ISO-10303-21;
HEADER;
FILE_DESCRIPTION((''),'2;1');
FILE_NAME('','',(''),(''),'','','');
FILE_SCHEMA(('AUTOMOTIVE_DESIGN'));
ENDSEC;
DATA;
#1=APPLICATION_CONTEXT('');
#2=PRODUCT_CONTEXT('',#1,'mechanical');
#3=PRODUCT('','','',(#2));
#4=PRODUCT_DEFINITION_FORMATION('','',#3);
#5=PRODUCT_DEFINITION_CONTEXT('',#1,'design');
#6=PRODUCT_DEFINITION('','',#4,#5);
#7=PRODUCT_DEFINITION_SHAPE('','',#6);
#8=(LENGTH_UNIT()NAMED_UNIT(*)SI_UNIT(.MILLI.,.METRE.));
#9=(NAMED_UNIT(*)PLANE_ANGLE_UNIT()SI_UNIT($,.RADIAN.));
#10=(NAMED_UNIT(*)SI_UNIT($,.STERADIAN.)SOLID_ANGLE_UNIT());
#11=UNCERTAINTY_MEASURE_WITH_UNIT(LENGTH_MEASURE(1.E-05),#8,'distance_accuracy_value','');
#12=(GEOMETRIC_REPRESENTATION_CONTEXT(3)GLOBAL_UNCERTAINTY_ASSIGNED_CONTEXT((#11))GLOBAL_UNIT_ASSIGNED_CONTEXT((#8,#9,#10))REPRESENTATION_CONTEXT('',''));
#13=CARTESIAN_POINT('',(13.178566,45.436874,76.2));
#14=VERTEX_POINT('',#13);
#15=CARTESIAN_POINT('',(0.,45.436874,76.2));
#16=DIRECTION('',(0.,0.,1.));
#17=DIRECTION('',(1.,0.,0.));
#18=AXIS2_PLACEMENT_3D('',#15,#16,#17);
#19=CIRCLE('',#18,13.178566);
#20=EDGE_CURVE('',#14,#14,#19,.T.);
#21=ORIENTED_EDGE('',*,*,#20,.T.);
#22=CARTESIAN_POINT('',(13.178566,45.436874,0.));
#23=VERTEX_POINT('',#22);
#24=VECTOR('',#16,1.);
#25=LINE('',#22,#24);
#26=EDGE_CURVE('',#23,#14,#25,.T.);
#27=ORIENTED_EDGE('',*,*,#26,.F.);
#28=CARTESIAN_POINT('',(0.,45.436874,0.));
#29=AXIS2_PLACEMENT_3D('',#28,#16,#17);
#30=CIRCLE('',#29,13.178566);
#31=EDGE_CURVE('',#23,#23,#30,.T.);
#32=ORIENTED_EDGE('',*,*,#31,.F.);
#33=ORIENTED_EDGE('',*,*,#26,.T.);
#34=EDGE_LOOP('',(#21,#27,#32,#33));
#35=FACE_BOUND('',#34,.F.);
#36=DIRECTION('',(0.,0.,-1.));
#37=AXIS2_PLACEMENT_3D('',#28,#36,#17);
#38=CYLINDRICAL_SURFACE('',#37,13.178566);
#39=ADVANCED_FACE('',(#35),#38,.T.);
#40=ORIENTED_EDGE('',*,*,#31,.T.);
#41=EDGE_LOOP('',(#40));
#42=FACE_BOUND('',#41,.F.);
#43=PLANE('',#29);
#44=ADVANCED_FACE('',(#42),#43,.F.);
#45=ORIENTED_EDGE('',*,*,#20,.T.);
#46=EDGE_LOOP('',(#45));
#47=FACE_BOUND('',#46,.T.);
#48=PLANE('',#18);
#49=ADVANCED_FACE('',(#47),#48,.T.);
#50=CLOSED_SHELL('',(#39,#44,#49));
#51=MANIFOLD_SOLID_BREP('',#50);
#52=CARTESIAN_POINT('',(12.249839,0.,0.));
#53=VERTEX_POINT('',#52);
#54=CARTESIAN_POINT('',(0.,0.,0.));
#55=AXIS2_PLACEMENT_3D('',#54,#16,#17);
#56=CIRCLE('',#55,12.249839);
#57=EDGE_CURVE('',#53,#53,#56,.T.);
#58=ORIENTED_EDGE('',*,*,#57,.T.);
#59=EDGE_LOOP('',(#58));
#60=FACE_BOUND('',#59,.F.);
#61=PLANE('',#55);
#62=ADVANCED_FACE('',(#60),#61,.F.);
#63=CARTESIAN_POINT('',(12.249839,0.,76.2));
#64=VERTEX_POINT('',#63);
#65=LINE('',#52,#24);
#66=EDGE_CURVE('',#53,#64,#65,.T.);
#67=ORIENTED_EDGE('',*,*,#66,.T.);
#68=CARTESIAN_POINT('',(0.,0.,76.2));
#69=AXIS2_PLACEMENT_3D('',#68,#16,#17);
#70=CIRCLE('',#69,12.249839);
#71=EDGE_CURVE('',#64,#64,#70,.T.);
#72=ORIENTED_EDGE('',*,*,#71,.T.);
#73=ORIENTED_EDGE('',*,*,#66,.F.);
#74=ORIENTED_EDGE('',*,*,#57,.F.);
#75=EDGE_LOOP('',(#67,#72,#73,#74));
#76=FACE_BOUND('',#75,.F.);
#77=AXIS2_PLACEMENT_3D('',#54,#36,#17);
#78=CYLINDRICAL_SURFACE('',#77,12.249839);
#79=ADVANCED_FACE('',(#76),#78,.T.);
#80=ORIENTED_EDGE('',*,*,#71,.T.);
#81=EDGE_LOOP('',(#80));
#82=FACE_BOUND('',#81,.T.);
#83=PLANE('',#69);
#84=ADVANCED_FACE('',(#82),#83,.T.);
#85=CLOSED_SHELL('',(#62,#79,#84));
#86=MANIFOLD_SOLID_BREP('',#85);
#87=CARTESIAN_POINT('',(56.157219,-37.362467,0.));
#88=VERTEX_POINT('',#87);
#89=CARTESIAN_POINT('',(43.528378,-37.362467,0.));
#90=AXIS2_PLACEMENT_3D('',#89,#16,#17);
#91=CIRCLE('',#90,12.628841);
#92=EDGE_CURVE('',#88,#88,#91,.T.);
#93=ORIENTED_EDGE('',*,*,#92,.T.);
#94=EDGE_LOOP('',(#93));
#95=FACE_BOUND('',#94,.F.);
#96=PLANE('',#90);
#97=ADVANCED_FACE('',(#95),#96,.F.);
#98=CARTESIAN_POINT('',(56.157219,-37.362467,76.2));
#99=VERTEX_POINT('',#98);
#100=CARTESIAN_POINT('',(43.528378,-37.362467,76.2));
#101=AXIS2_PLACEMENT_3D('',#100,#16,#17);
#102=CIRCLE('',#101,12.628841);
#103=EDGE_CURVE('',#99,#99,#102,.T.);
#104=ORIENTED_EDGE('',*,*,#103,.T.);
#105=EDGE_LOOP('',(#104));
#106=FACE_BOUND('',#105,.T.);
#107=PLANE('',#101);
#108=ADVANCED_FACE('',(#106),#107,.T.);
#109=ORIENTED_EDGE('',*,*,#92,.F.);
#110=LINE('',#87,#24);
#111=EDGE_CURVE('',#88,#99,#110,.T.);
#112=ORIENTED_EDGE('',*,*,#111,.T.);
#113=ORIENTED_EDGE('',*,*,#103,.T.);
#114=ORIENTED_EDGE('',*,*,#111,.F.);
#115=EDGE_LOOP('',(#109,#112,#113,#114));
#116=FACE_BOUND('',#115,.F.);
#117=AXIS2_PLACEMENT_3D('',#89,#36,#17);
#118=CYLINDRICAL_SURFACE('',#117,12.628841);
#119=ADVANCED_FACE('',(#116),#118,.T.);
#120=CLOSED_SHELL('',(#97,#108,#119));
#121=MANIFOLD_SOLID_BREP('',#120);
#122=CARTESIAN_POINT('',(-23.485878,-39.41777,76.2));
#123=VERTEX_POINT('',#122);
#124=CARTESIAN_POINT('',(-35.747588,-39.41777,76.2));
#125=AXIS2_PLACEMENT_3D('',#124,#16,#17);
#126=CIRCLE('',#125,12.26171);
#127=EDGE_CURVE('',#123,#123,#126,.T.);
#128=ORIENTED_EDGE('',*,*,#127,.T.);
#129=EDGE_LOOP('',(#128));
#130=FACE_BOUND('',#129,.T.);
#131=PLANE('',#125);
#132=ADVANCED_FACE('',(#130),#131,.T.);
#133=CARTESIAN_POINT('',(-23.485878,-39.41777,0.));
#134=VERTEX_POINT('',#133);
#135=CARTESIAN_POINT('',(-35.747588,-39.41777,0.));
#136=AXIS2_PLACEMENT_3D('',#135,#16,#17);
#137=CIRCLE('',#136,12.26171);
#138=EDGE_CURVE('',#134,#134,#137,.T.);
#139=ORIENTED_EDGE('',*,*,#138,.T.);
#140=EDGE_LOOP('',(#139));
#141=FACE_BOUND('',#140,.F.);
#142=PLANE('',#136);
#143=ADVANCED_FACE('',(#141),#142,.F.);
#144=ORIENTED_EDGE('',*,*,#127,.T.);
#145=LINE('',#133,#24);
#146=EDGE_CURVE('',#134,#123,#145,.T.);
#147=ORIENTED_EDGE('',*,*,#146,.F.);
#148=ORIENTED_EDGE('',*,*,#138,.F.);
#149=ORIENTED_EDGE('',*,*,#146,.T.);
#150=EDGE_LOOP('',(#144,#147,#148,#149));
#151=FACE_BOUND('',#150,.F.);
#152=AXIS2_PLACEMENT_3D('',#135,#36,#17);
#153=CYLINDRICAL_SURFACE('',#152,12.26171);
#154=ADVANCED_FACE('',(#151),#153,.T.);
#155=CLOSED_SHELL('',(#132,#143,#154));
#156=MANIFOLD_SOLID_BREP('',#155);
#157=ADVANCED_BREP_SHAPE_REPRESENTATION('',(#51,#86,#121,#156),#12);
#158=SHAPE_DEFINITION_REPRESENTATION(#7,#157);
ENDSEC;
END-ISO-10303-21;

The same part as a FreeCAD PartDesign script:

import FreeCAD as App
import Part
import Sketcher

V = App.Vector
Q = App.Units.Quantity

doc = App.newDocument("Part")
body = doc.addObject("PartDesign::Body", "Body")
body.AllowCompound = True

# Sketch on XY plane
sketch1 = body.newObject("Sketcher::SketchObject", "Sketch")
sketch1.AttachmentSupport = (doc.getObject("XY_Plane"), [""])
sketch1.MapMode = "FlatFace"
sketch1.addGeometry([
    Part.Circle(V(0, 45, 0), V(0, 0, 1), 13),
    Part.Circle(V(0, 0, 0), V(0, 0, 1), 12),
    Part.Circle(V(44, -37, 0), V(0, 0, 1), 13),
    Part.Circle(V(-36, -39, 0), V(0, 0, 1), 12),
], False)
sketch1.addConstraint([
    Sketcher.Constraint("Coincident", 1, 3, -1, 1),
    Sketcher.Constraint("PointOnObject", 0, 3, -2),
    Sketcher.Constraint("Diameter", 0, Q("26.357132 mm")),
    Sketcher.Constraint("Diameter", 2, Q("25.257682 mm")),
    Sketcher.Constraint("Diameter", 3, Q("24.52342 mm")),
    Sketcher.Constraint("Diameter", 1, Q("24.499678 mm")),
    Sketcher.Constraint("DistanceY", 3, 3, -1, 1, Q("39.41777 mm")),
    Sketcher.Constraint("DistanceY", 2, 3, 0, 3, Q("82.799341 mm")),
    Sketcher.Constraint("DistanceY", -1, 1, 0, 3, Q("45.436874 mm")),
    Sketcher.Constraint("DistanceX", -1, 1, 2, 3, Q("43.528378 mm")),
    Sketcher.Constraint("DistanceX", 3, 3, -1, 1, Q("35.747588 mm")),
])
pad1 = body.newObject("PartDesign::Pad", "Pad")
pad1.Profile = sketch1
pad1.Length = Q("3 in")

doc.recompute()
